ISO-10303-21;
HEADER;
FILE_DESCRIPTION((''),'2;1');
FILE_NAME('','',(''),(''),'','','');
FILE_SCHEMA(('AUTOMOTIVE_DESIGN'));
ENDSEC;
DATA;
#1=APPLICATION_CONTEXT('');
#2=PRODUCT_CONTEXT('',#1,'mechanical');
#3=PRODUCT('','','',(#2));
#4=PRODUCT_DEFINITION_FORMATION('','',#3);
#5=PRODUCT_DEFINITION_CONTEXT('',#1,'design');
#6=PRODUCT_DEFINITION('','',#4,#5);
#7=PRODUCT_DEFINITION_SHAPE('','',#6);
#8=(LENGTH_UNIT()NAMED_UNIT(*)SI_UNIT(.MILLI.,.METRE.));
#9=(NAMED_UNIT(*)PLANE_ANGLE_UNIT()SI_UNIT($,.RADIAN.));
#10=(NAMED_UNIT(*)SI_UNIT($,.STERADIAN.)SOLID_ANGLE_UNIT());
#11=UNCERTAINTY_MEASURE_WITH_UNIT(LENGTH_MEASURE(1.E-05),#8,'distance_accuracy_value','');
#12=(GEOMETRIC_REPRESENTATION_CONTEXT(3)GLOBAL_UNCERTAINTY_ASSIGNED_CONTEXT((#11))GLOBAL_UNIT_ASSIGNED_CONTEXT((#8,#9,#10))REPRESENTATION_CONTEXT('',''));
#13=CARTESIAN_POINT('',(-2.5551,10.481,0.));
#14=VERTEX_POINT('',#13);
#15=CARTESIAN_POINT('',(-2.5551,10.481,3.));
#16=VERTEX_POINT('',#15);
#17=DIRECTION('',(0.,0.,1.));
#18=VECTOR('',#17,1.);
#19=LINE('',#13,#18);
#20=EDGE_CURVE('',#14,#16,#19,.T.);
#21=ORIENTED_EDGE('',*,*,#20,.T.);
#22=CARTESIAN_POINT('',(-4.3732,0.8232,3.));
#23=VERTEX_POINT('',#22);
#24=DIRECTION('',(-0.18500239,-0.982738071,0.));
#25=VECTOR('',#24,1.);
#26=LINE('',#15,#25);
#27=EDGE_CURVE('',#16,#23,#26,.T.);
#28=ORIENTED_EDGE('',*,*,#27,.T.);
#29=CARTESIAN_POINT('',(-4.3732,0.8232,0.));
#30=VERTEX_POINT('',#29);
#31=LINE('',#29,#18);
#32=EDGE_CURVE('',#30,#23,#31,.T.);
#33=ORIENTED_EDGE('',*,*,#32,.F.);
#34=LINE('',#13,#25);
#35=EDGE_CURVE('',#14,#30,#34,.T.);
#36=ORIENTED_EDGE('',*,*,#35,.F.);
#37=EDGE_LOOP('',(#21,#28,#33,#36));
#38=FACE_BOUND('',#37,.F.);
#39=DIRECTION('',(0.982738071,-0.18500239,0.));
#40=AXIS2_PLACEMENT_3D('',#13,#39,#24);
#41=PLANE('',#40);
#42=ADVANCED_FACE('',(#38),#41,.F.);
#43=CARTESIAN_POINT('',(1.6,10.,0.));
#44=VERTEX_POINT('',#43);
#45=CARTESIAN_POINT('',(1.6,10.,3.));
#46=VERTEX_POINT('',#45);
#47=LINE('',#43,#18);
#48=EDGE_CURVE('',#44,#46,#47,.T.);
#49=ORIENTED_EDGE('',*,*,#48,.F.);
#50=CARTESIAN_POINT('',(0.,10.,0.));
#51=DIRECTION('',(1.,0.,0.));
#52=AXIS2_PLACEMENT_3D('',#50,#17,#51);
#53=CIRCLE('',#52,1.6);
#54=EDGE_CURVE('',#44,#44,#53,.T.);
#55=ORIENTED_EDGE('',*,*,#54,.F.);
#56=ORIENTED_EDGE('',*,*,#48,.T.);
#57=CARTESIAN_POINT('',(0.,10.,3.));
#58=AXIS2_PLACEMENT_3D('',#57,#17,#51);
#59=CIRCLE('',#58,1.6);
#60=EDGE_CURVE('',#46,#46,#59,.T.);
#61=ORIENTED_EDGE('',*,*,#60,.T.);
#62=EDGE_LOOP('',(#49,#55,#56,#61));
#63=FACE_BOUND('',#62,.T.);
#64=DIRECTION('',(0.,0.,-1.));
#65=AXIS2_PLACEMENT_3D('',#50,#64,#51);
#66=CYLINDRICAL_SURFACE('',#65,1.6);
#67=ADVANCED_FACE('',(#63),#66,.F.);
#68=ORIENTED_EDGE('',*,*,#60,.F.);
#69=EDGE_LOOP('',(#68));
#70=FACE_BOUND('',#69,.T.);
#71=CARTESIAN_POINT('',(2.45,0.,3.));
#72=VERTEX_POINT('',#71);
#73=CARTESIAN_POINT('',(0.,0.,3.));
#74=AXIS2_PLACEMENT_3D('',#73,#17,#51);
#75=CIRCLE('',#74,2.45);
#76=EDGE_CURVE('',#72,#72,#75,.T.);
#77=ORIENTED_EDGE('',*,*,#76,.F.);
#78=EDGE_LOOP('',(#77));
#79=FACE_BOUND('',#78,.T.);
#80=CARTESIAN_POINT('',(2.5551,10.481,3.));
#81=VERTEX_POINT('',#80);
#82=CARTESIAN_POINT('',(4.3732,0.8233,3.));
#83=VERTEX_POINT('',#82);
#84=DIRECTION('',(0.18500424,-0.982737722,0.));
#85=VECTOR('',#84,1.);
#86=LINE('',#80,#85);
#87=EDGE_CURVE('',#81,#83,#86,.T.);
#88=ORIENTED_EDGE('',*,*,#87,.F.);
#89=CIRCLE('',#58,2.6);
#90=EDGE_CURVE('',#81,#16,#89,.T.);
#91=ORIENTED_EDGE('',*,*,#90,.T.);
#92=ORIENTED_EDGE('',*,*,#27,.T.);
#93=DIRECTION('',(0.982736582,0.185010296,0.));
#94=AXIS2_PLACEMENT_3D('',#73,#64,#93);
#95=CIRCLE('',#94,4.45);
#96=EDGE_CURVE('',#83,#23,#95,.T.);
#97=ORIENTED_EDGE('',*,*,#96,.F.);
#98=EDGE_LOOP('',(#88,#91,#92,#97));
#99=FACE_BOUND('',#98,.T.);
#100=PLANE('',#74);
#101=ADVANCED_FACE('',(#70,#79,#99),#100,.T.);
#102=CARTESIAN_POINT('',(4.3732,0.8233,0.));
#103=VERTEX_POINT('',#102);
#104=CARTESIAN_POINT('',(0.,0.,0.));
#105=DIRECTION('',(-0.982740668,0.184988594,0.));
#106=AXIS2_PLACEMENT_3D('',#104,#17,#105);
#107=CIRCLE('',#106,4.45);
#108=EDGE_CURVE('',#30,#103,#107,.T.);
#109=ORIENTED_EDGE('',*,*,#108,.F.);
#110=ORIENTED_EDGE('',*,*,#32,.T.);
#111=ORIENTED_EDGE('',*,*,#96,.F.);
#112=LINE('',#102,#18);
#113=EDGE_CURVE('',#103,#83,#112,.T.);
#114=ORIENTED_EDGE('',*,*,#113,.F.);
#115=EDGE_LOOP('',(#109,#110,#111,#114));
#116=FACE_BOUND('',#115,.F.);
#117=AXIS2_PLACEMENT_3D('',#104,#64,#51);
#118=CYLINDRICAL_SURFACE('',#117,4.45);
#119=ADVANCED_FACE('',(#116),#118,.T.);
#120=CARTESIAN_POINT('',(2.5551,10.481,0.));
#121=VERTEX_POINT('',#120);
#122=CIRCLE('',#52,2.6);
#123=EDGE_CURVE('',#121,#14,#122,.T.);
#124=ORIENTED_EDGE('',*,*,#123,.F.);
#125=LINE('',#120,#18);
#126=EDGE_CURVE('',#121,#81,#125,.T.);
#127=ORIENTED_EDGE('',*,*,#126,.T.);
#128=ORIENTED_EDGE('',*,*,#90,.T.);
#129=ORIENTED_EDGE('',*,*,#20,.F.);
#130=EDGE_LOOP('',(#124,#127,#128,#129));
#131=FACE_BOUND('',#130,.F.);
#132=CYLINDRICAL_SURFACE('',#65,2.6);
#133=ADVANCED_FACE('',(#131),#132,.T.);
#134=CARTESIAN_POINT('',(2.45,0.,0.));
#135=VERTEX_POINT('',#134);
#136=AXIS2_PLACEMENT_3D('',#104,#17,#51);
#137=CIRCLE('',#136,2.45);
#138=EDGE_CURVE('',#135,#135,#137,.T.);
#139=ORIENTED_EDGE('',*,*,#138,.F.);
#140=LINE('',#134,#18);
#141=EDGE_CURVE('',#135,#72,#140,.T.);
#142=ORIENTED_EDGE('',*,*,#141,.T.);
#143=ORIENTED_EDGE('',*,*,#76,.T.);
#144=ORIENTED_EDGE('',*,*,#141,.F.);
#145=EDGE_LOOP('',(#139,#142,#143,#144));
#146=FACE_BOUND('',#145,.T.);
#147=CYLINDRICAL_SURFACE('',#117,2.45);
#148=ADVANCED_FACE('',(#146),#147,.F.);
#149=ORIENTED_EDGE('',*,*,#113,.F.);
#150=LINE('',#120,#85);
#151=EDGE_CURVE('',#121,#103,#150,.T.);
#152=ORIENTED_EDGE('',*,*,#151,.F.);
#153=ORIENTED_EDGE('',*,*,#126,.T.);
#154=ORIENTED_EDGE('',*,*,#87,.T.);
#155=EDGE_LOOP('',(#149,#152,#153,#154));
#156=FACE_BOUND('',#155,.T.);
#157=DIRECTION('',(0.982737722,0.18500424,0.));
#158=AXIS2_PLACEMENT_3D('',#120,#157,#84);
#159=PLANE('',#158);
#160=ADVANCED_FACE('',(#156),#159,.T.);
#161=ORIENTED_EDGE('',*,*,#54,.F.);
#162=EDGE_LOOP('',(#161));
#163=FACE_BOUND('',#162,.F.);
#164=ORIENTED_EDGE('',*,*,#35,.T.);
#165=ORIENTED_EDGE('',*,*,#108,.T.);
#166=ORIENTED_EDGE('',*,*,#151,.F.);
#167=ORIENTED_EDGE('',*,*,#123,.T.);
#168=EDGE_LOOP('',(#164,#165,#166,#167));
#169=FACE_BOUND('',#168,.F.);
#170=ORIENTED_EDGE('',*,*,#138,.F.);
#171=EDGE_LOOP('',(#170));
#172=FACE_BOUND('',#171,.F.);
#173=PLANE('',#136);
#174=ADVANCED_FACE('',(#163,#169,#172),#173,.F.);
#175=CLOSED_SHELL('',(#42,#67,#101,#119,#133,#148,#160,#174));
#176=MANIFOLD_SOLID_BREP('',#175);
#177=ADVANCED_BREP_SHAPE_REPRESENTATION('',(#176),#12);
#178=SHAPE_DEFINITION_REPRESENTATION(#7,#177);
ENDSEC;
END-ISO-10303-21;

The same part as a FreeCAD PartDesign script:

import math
import FreeCAD as App
import Part
import Sketcher

V = App.Vector
Q = App.Units.Quantity

doc = App.newDocument("Part")
body = doc.addObject("PartDesign::Body", "Body")

sketch1 = body.newObject("Sketcher::SketchObject", "Sketch")
sketch1.AttachmentSupport = (doc.getObject("XY_Plane"), [""])
sketch1.MapMode = "FlatFace"
sketch1.addGeometry([
    Part.ArcOfCircle(Part.Circle(V(0, 0, 0), V(0, 0, 1), 4.5), math.radians(169), math.radians(371)),
    Part.LineSegment(V(4.4, 0.8, 0), V(2.6, 10.5, 0)),
    Part.ArcOfCircle(Part.Circle(V(0, 10, 0), V(0, 0, 1), 2.6), math.radians(11), math.radians(169)),
    Part.LineSegment(V(-2.6, 10.5, 0), V(-4.4, 0.8, 0)),
    Part.Circle(V(0, 0, 0), V(0, 0, 1), 2.5),
    Part.Circle(V(0, 10, 0), V(0, 0, 1), 1.6),
], False)
sketch1.addConstraint([
    Sketcher.Constraint("Tangent", 0, 2, 1, 1),
    Sketcher.Constraint("Tangent", 1, 2, 2, 1),
    Sketcher.Constraint("Tangent", 2, 2, 3, 1),
    Sketcher.Constraint("Tangent", 3, 2, 0, 1),
    Sketcher.Constraint("Coincident", 0, 3, -1, 1),
    Sketcher.Constraint("Coincident", 4, 3, -1, 1),
    Sketcher.Constraint("Coincident", 5, 3, 2, 3),
    Sketcher.Constraint("PointOnObject", 2, 3, -2),
    Sketcher.Constraint("Diameter", 4, Q("4.9 mm")),
    Sketcher.Constraint("Diameter", 5, Q("3.2 mm")),
    Sketcher.Constraint("DistanceY", -1, 1, 2, 3, Q("10 mm")),
    Sketcher.Constraint("Radius", 2, Q("2.6 mm")),
    Sketcher.Constraint("Radius", 0, Q("4.45 mm")),
])
pad1 = body.newObject("PartDesign::Pad", "Pad")
pad1.Profile = sketch1
pad1.Length = 3

doc.recompute()
